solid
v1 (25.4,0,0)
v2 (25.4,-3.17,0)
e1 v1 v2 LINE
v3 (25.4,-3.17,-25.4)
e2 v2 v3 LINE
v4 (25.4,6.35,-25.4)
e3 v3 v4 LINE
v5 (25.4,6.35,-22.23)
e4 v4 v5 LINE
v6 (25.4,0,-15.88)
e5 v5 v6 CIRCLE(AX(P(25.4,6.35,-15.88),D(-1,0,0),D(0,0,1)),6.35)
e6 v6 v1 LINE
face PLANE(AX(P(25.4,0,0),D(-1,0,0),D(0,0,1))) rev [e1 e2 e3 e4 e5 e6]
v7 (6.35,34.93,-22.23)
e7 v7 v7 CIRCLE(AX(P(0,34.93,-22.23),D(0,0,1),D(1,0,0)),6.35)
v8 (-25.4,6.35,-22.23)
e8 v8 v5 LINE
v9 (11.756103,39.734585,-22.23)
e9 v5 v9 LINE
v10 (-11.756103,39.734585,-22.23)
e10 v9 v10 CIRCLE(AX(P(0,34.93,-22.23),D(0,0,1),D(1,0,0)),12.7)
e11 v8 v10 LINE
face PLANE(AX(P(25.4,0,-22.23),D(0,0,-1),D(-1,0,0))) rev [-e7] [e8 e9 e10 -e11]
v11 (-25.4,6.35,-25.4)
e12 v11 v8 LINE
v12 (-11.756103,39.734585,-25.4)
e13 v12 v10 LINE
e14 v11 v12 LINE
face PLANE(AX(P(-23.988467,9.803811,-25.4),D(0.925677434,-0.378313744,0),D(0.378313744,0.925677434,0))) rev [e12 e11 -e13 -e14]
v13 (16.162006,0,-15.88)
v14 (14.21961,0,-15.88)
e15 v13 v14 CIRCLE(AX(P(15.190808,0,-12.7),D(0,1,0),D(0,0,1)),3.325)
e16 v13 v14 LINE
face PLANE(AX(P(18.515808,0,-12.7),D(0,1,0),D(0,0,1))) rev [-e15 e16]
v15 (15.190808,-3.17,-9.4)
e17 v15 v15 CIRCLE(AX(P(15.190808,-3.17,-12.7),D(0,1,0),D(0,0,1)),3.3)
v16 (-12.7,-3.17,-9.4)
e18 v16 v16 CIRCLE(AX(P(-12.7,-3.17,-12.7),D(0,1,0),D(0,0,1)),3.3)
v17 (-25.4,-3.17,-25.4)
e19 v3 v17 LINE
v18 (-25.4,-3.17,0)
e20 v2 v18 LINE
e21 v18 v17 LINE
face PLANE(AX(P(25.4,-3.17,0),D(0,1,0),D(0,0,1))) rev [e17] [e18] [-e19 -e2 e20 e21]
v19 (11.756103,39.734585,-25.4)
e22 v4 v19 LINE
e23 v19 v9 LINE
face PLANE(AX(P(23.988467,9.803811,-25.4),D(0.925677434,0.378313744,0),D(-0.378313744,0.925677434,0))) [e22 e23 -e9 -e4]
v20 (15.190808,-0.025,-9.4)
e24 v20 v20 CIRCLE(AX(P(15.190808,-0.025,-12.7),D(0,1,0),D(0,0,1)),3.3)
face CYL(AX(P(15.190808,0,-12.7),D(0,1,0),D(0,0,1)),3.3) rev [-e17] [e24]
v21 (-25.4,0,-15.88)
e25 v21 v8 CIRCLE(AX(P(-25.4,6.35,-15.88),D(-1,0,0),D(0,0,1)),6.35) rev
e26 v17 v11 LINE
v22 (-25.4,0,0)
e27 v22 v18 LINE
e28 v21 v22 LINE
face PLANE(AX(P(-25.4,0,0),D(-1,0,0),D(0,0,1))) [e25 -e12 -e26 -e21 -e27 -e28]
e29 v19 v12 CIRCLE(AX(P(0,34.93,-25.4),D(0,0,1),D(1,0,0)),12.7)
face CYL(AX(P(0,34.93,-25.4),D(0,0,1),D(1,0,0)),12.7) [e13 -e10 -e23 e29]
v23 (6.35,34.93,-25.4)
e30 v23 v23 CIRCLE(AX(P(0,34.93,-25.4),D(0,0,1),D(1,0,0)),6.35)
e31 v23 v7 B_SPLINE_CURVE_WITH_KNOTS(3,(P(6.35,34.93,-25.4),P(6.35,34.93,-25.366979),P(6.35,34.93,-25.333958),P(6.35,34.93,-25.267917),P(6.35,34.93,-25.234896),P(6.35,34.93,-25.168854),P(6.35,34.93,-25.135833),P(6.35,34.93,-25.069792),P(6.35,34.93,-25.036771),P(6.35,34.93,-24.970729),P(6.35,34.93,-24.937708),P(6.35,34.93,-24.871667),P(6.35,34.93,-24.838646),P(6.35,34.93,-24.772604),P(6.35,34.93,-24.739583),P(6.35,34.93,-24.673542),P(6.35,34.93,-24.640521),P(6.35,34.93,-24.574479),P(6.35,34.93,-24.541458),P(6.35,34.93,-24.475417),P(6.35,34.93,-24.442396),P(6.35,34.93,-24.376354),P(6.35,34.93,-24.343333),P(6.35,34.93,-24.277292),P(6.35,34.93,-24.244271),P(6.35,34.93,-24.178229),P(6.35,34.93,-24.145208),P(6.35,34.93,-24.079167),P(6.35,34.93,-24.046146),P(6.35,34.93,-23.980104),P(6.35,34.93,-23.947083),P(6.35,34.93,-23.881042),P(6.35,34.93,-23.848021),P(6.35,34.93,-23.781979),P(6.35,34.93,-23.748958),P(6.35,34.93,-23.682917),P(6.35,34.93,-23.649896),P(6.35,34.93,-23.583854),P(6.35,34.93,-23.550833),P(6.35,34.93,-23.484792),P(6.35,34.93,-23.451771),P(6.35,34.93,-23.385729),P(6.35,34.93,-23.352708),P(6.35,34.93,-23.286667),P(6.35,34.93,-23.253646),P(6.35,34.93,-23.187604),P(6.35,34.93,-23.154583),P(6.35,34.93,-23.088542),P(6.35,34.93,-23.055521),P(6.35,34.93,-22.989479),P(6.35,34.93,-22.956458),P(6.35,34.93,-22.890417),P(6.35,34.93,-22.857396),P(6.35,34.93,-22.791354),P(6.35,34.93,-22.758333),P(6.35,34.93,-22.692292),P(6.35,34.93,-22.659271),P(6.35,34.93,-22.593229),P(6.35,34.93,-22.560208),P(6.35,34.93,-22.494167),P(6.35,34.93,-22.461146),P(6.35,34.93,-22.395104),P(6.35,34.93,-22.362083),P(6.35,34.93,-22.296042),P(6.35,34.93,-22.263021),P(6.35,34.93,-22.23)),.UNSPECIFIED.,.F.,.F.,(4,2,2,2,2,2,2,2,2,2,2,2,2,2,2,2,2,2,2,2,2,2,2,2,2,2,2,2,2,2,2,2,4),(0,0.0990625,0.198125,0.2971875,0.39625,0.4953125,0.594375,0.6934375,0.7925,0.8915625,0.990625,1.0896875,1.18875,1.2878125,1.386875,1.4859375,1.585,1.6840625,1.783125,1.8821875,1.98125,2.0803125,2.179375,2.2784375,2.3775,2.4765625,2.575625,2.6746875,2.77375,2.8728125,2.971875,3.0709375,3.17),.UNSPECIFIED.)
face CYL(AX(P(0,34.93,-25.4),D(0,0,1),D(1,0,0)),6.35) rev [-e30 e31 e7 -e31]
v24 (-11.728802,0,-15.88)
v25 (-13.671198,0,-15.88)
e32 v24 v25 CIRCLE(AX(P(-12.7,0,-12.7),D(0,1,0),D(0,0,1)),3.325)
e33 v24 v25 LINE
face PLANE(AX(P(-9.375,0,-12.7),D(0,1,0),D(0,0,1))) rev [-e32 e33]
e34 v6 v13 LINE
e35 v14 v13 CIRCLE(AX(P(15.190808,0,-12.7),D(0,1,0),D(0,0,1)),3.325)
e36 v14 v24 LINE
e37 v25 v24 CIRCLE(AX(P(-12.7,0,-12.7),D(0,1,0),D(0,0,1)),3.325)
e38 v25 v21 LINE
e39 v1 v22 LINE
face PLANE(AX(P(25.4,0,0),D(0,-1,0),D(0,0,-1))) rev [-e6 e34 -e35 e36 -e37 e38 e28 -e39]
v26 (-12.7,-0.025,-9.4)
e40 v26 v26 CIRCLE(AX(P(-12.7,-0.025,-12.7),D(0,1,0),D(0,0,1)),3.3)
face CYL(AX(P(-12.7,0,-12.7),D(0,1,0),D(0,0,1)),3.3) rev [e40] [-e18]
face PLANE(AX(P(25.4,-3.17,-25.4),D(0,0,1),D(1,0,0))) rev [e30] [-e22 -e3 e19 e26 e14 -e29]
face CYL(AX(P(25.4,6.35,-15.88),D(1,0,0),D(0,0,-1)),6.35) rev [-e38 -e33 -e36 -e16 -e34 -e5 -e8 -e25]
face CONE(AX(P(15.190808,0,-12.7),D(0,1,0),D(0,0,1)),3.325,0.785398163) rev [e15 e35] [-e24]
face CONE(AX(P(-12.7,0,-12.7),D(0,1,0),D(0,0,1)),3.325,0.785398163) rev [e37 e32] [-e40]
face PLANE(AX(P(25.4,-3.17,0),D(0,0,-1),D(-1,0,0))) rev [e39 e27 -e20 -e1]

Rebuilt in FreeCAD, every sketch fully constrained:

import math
import FreeCAD as App
import Part
import Sketcher

V = App.Vector
Q = App.Units.Quantity


def edges_at(feature, points):
    """Names of the edges that pass closest to the given points."""
    edges = feature.Shape.Edges
    near = lambda p: min(range(len(edges)), key=lambda i: edges[i].distToShape(Part.Vertex(*p))[0])
    return sorted({f"Edge{near(p) + 1}" for p in points})

doc = App.newDocument("Part")
body = doc.addObject("PartDesign::Body", "Body")

# Sketch on YZ plane
sketch1 = body.newObject("Sketcher::SketchObject", "Sketch")
sketch1.AttachmentSupport = (doc.getObject("YZ_Plane"), [""])
sketch1.MapMode = "FlatFace"
sketch1.addGeometry(Part.LineSegment(V(0, -22.2, 0), V(0, 0, 0)), False)
sketch1.addGeometry(Part.LineSegment(V(0, 0, 0), V(-3.2, 0, 0)), False)
sketch1.addGeometry(Part.LineSegment(V(-3.2, 0, 0), V(-3.2, -25.4, 0)), False)
sketch1.addGeometry(Part.LineSegment(V(-3.2, -25.4, 0), V(47.6, -25.4, 0)), False)
sketch1.addGeometry(Part.LineSegment(V(47.6, -25.4, 0), V(47.6, -22.2, 0)), False)
sketch1.addGeometry(Part.LineSegment(V(47.6, -22.2, 0), V(0, -22.2, 0)), False)
sketch1.addConstraint(Sketcher.Constraint("Coincident", 0, 2, 1, 1))
sketch1.addConstraint(Sketcher.Constraint("Coincident", 1, 2, 2, 1))
sketch1.addConstraint(Sketcher.Constraint("Coincident", 2, 2, 3, 1))
sketch1.addConstraint(Sketcher.Constraint("Coincident", 3, 2, 4, 1))
sketch1.addConstraint(Sketcher.Constraint("Coincident", 4, 2, 5, 1))
sketch1.addConstraint(Sketcher.Constraint("Coincident", 5, 2, 0, 1))
sketch1.addConstraint(Sketcher.Constraint("Vertical", 0))
sketch1.addConstraint(Sketcher.Constraint("Horizontal", 1))
sketch1.addConstraint(Sketcher.Constraint("Vertical", 2))
sketch1.addConstraint(Sketcher.Constraint("Horizontal", 3))
sketch1.addConstraint(Sketcher.Constraint("Vertical", 4))
sketch1.addConstraint(Sketcher.Constraint("Horizontal", 5))
sketch1.addConstraint(Sketcher.Constraint("Coincident", 0, 2, -1, 1))
sketch1.addConstraint(Sketcher.Constraint("Equal", 1, 4))
sketch1.addConstraint(Sketcher.Constraint("DistanceX", 3, 1, 3, 2, Q("2 in")))
sketch1.addConstraint(Sketcher.Constraint("DistanceY", 2, 2, 2, 1, Q("1 in")))
sketch1.addConstraint(Sketcher.Constraint("DistanceX", 1, 2, 1, 1, 3.17))
pad1 = body.newObject("PartDesign::Pad", "Pad")
pad1.Profile = sketch1
pad1.Length = Q("2 in")
pad1.Midplane = True
doc.recompute()

fillet = body.newObject("PartDesign::Fillet", "Fillet")
fillet.Base = (pad1, edges_at(pad1, [(0, 0, -22.23)]))
fillet.Radius = Q("0.25 in")

# Sketch on YZ plane
sketch2 = body.newObject("Sketcher::SketchObject", "Sketch001")
sketch2.AttachmentSupport = (doc.getObject("YZ_Plane"), [""])
sketch2.MapMode = "FlatFace"
sketch2.AttachmentOffset = App.Placement(V(0, 0, -0.5 * 25.4), App.Rotation())
sketch2.addGeometry(Part.LineSegment(V(-3.17, -12.7, 0), V(0, -12.7, 0)), False)
sketch2.addGeometry(Part.LineSegment(V(0, -12.7, 0), V(0, -9.375, 0)), False)
sketch2.addGeometry(Part.LineSegment(V(0, -9.375, 0), V(-0.025, -9.4, 0)), False)
sketch2.addGeometry(Part.LineSegment(V(-0.025, -9.4, 0), V(-3.17, -9.4, 0)), False)
sketch2.addGeometry(Part.LineSegment(V(-3.17, -9.4, 0), V(-3.17, -12.7, 0)), False)
sketch2.addGeometry(Part.LineSegment(V(0, -12.7, 0), V(-3.17, -12.7, 0)), True)  # axis
sketch2.addConstraint(Sketcher.Constraint("Coincident", 0, 2, 1, 1))
sketch2.addConstraint(Sketcher.Constraint("Coincident", 1, 2, 2, 1))
sketch2.addConstraint(Sketcher.Constraint("Coincident", 2, 2, 3, 1))
sketch2.addConstraint(Sketcher.Constraint("Coincident", 3, 2, 4, 1))
sketch2.addConstraint(Sketcher.Constraint("Coincident", 4, 2, 0, 1))
sketch2.addConstraint(Sketcher.Constraint("Horizontal", 0))
sketch2.addConstraint(Sketcher.Constraint("Vertical", 1))
sketch2.addConstraint(Sketcher.Constraint("Horizontal", 3))
sketch2.addConstraint(Sketcher.Constraint("Vertical", 4))
sketch2.addConstraint(Sketcher.Constraint("Horizontal", 5))
sketch2.addConstraint(Sketcher.Constraint("Coincident", 5, 1, 0, 2))
sketch2.addConstraint(Sketcher.Constraint("PointOnObject", 0, 2, -2))
sketch2.addConstraint(Sketcher.Constraint("Vertical", 3, 2, 5, 2))
sketch2.addConstraint(Sketcher.Constraint("Angle", 2, Q("-135 deg")))
sketch2.addConstraint(Sketcher.Constraint("DistanceY", 0, 2, -1, 1, Q("0.5 in")))
sketch2.addConstraint(Sketcher.Constraint("DistanceX", 0, 1, 0, 2, 3.17))
sketch2.addConstraint(Sketcher.Constraint("DistanceX", 3, 2, 3, 1, 3.145))
sketch2.addConstraint(Sketcher.Constraint("DistanceY", 1, 1, 1, 2, 3.325))
groove = body.newObject("PartDesign::Groove", "Groove")
groove.Profile = sketch2
groove.ReferenceAxis = (sketch2, ["Axis0"])
groove.Angle = 360
doc.recompute()

linearpattern = body.newObject("PartDesign::LinearPattern", "LinearPattern")
linearpattern.Originals = [groove]
linearpattern.Direction = (doc.getObject("X_Axis"), [""])
linearpattern.Mode = "offset"
linearpattern.Offset = 27.890808
linearpattern.Occurrences = 2
body.Tip = linearpattern

# Sketch on XY plane
sketch3 = body.newObject("Sketcher::SketchObject", "Sketch002")
sketch3.AttachmentSupport = (doc.getObject("XY_Plane"), [""])
sketch3.MapMode = "FlatFace"
sketch3.AttachmentOffset = App.Placement(V(0, 0, -22.23), App.Rotation())
sketch3.addGeometry(Part.Circle(V(0, 35, 0), V(0, 0, 1), 6), False)
sketch3.addGeometry(Part.LineSegment(V(25, 48, 0), V(0, 48, 0)), False)
sketch3.addGeometry(Part.ArcOfCircle(Part.Circle(V(0, 35, 0), V(0, 0, 1), 13), math.radians(22), math.radians(90)), False)
sketch3.addGeometry(Part.LineSegment(V(12, 40, 0), V(25, 6, 0)), False)
sketch3.addGeometry(Part.LineSegment(V(25, 6, 0), V(25, 48, 0)), False)
sketch3.addGeometry(Part.LineSegment(V(-25, 48, 0), V(-25, 6, 0)), False)
sketch3.addGeometry(Part.LineSegment(V(-25, 6, 0), V(-12, 40, 0)), False)
sketch3.addGeometry(Part.ArcOfCircle(Part.Circle(V(0, 35, 0), V(0, 0, 1), 13), math.radians(90), math.radians(158)), False)
sketch3.addGeometry(Part.LineSegment(V(0, 48, 0), V(-25, 48, 0)), False)
sketch3.addConstraint(Sketcher.Constraint("Tangent", 1, 2, 2, 2))
sketch3.addConstraint(Sketcher.Constraint("Tangent", 2, 1, 3, 1))
sketch3.addConstraint(Sketcher.Constraint("Coincident", 3, 2, 4, 1))
sketch3.addConstraint(Sketcher.Constraint("Coincident", 4, 2, 1, 1))
sketch3.addConstraint(Sketcher.Constraint("Coincident", 5, 2, 6, 1))
sketch3.addConstraint(Sketcher.Constraint("Tangent", 6, 2, 7, 2))
sketch3.addConstraint(Sketcher.Constraint("Tangent", 7, 1, 8, 1))
sketch3.addConstraint(Sketcher.Constraint("Coincident", 8, 2, 5, 1))
sketch3.addConstraint(Sketcher.Constraint("Horizontal", 1))
sketch3.addConstraint(Sketcher.Constraint("Vertical", 4))
sketch3.addConstraint(Sketcher.Constraint("Vertical", 5))
sketch3.addConstraint(Sketcher.Constraint("Horizontal", 8))
sketch3.addConstraint(Sketcher.Constraint("Coincident", 2, 3, 0, 3))
sketch3.addConstraint(Sketcher.Constraint("Coincident", 7, 3, 0, 3))
sketch3.addConstraint(Sketcher.Constraint("Equal", 2, 7))
sketch3.addConstraint(Sketcher.Constraint("Symmetric", 3, 2, 5, 2, -2))
sketch3.addConstraint(Sketcher.Constraint("PointOnObject", 0, 3, -2))
sketch3.addConstraint(Sketcher.Constraint("Diameter", 0, Q("0.5 in")))
sketch3.addConstraint(Sketcher.Constraint("Radius", 2, Q("0.5 in")))
sketch3.addConstraint(Sketcher.Constraint("DistanceX", 1, 2, 1, 1, Q("1 in")))
sketch3.addConstraint(Sketcher.Constraint("DistanceY", -1, 1, 3, 2, Q("0.25 in")))
sketch3.addConstraint(Sketcher.Constraint("DistanceY", 4, 1, 4, 2, 41.28))
pocket1 = body.newObject("PartDesign::Pocket", "Pocket")
pocket1.Profile = sketch3
pocket1.Type = "ThroughAll"

doc.recompute()
